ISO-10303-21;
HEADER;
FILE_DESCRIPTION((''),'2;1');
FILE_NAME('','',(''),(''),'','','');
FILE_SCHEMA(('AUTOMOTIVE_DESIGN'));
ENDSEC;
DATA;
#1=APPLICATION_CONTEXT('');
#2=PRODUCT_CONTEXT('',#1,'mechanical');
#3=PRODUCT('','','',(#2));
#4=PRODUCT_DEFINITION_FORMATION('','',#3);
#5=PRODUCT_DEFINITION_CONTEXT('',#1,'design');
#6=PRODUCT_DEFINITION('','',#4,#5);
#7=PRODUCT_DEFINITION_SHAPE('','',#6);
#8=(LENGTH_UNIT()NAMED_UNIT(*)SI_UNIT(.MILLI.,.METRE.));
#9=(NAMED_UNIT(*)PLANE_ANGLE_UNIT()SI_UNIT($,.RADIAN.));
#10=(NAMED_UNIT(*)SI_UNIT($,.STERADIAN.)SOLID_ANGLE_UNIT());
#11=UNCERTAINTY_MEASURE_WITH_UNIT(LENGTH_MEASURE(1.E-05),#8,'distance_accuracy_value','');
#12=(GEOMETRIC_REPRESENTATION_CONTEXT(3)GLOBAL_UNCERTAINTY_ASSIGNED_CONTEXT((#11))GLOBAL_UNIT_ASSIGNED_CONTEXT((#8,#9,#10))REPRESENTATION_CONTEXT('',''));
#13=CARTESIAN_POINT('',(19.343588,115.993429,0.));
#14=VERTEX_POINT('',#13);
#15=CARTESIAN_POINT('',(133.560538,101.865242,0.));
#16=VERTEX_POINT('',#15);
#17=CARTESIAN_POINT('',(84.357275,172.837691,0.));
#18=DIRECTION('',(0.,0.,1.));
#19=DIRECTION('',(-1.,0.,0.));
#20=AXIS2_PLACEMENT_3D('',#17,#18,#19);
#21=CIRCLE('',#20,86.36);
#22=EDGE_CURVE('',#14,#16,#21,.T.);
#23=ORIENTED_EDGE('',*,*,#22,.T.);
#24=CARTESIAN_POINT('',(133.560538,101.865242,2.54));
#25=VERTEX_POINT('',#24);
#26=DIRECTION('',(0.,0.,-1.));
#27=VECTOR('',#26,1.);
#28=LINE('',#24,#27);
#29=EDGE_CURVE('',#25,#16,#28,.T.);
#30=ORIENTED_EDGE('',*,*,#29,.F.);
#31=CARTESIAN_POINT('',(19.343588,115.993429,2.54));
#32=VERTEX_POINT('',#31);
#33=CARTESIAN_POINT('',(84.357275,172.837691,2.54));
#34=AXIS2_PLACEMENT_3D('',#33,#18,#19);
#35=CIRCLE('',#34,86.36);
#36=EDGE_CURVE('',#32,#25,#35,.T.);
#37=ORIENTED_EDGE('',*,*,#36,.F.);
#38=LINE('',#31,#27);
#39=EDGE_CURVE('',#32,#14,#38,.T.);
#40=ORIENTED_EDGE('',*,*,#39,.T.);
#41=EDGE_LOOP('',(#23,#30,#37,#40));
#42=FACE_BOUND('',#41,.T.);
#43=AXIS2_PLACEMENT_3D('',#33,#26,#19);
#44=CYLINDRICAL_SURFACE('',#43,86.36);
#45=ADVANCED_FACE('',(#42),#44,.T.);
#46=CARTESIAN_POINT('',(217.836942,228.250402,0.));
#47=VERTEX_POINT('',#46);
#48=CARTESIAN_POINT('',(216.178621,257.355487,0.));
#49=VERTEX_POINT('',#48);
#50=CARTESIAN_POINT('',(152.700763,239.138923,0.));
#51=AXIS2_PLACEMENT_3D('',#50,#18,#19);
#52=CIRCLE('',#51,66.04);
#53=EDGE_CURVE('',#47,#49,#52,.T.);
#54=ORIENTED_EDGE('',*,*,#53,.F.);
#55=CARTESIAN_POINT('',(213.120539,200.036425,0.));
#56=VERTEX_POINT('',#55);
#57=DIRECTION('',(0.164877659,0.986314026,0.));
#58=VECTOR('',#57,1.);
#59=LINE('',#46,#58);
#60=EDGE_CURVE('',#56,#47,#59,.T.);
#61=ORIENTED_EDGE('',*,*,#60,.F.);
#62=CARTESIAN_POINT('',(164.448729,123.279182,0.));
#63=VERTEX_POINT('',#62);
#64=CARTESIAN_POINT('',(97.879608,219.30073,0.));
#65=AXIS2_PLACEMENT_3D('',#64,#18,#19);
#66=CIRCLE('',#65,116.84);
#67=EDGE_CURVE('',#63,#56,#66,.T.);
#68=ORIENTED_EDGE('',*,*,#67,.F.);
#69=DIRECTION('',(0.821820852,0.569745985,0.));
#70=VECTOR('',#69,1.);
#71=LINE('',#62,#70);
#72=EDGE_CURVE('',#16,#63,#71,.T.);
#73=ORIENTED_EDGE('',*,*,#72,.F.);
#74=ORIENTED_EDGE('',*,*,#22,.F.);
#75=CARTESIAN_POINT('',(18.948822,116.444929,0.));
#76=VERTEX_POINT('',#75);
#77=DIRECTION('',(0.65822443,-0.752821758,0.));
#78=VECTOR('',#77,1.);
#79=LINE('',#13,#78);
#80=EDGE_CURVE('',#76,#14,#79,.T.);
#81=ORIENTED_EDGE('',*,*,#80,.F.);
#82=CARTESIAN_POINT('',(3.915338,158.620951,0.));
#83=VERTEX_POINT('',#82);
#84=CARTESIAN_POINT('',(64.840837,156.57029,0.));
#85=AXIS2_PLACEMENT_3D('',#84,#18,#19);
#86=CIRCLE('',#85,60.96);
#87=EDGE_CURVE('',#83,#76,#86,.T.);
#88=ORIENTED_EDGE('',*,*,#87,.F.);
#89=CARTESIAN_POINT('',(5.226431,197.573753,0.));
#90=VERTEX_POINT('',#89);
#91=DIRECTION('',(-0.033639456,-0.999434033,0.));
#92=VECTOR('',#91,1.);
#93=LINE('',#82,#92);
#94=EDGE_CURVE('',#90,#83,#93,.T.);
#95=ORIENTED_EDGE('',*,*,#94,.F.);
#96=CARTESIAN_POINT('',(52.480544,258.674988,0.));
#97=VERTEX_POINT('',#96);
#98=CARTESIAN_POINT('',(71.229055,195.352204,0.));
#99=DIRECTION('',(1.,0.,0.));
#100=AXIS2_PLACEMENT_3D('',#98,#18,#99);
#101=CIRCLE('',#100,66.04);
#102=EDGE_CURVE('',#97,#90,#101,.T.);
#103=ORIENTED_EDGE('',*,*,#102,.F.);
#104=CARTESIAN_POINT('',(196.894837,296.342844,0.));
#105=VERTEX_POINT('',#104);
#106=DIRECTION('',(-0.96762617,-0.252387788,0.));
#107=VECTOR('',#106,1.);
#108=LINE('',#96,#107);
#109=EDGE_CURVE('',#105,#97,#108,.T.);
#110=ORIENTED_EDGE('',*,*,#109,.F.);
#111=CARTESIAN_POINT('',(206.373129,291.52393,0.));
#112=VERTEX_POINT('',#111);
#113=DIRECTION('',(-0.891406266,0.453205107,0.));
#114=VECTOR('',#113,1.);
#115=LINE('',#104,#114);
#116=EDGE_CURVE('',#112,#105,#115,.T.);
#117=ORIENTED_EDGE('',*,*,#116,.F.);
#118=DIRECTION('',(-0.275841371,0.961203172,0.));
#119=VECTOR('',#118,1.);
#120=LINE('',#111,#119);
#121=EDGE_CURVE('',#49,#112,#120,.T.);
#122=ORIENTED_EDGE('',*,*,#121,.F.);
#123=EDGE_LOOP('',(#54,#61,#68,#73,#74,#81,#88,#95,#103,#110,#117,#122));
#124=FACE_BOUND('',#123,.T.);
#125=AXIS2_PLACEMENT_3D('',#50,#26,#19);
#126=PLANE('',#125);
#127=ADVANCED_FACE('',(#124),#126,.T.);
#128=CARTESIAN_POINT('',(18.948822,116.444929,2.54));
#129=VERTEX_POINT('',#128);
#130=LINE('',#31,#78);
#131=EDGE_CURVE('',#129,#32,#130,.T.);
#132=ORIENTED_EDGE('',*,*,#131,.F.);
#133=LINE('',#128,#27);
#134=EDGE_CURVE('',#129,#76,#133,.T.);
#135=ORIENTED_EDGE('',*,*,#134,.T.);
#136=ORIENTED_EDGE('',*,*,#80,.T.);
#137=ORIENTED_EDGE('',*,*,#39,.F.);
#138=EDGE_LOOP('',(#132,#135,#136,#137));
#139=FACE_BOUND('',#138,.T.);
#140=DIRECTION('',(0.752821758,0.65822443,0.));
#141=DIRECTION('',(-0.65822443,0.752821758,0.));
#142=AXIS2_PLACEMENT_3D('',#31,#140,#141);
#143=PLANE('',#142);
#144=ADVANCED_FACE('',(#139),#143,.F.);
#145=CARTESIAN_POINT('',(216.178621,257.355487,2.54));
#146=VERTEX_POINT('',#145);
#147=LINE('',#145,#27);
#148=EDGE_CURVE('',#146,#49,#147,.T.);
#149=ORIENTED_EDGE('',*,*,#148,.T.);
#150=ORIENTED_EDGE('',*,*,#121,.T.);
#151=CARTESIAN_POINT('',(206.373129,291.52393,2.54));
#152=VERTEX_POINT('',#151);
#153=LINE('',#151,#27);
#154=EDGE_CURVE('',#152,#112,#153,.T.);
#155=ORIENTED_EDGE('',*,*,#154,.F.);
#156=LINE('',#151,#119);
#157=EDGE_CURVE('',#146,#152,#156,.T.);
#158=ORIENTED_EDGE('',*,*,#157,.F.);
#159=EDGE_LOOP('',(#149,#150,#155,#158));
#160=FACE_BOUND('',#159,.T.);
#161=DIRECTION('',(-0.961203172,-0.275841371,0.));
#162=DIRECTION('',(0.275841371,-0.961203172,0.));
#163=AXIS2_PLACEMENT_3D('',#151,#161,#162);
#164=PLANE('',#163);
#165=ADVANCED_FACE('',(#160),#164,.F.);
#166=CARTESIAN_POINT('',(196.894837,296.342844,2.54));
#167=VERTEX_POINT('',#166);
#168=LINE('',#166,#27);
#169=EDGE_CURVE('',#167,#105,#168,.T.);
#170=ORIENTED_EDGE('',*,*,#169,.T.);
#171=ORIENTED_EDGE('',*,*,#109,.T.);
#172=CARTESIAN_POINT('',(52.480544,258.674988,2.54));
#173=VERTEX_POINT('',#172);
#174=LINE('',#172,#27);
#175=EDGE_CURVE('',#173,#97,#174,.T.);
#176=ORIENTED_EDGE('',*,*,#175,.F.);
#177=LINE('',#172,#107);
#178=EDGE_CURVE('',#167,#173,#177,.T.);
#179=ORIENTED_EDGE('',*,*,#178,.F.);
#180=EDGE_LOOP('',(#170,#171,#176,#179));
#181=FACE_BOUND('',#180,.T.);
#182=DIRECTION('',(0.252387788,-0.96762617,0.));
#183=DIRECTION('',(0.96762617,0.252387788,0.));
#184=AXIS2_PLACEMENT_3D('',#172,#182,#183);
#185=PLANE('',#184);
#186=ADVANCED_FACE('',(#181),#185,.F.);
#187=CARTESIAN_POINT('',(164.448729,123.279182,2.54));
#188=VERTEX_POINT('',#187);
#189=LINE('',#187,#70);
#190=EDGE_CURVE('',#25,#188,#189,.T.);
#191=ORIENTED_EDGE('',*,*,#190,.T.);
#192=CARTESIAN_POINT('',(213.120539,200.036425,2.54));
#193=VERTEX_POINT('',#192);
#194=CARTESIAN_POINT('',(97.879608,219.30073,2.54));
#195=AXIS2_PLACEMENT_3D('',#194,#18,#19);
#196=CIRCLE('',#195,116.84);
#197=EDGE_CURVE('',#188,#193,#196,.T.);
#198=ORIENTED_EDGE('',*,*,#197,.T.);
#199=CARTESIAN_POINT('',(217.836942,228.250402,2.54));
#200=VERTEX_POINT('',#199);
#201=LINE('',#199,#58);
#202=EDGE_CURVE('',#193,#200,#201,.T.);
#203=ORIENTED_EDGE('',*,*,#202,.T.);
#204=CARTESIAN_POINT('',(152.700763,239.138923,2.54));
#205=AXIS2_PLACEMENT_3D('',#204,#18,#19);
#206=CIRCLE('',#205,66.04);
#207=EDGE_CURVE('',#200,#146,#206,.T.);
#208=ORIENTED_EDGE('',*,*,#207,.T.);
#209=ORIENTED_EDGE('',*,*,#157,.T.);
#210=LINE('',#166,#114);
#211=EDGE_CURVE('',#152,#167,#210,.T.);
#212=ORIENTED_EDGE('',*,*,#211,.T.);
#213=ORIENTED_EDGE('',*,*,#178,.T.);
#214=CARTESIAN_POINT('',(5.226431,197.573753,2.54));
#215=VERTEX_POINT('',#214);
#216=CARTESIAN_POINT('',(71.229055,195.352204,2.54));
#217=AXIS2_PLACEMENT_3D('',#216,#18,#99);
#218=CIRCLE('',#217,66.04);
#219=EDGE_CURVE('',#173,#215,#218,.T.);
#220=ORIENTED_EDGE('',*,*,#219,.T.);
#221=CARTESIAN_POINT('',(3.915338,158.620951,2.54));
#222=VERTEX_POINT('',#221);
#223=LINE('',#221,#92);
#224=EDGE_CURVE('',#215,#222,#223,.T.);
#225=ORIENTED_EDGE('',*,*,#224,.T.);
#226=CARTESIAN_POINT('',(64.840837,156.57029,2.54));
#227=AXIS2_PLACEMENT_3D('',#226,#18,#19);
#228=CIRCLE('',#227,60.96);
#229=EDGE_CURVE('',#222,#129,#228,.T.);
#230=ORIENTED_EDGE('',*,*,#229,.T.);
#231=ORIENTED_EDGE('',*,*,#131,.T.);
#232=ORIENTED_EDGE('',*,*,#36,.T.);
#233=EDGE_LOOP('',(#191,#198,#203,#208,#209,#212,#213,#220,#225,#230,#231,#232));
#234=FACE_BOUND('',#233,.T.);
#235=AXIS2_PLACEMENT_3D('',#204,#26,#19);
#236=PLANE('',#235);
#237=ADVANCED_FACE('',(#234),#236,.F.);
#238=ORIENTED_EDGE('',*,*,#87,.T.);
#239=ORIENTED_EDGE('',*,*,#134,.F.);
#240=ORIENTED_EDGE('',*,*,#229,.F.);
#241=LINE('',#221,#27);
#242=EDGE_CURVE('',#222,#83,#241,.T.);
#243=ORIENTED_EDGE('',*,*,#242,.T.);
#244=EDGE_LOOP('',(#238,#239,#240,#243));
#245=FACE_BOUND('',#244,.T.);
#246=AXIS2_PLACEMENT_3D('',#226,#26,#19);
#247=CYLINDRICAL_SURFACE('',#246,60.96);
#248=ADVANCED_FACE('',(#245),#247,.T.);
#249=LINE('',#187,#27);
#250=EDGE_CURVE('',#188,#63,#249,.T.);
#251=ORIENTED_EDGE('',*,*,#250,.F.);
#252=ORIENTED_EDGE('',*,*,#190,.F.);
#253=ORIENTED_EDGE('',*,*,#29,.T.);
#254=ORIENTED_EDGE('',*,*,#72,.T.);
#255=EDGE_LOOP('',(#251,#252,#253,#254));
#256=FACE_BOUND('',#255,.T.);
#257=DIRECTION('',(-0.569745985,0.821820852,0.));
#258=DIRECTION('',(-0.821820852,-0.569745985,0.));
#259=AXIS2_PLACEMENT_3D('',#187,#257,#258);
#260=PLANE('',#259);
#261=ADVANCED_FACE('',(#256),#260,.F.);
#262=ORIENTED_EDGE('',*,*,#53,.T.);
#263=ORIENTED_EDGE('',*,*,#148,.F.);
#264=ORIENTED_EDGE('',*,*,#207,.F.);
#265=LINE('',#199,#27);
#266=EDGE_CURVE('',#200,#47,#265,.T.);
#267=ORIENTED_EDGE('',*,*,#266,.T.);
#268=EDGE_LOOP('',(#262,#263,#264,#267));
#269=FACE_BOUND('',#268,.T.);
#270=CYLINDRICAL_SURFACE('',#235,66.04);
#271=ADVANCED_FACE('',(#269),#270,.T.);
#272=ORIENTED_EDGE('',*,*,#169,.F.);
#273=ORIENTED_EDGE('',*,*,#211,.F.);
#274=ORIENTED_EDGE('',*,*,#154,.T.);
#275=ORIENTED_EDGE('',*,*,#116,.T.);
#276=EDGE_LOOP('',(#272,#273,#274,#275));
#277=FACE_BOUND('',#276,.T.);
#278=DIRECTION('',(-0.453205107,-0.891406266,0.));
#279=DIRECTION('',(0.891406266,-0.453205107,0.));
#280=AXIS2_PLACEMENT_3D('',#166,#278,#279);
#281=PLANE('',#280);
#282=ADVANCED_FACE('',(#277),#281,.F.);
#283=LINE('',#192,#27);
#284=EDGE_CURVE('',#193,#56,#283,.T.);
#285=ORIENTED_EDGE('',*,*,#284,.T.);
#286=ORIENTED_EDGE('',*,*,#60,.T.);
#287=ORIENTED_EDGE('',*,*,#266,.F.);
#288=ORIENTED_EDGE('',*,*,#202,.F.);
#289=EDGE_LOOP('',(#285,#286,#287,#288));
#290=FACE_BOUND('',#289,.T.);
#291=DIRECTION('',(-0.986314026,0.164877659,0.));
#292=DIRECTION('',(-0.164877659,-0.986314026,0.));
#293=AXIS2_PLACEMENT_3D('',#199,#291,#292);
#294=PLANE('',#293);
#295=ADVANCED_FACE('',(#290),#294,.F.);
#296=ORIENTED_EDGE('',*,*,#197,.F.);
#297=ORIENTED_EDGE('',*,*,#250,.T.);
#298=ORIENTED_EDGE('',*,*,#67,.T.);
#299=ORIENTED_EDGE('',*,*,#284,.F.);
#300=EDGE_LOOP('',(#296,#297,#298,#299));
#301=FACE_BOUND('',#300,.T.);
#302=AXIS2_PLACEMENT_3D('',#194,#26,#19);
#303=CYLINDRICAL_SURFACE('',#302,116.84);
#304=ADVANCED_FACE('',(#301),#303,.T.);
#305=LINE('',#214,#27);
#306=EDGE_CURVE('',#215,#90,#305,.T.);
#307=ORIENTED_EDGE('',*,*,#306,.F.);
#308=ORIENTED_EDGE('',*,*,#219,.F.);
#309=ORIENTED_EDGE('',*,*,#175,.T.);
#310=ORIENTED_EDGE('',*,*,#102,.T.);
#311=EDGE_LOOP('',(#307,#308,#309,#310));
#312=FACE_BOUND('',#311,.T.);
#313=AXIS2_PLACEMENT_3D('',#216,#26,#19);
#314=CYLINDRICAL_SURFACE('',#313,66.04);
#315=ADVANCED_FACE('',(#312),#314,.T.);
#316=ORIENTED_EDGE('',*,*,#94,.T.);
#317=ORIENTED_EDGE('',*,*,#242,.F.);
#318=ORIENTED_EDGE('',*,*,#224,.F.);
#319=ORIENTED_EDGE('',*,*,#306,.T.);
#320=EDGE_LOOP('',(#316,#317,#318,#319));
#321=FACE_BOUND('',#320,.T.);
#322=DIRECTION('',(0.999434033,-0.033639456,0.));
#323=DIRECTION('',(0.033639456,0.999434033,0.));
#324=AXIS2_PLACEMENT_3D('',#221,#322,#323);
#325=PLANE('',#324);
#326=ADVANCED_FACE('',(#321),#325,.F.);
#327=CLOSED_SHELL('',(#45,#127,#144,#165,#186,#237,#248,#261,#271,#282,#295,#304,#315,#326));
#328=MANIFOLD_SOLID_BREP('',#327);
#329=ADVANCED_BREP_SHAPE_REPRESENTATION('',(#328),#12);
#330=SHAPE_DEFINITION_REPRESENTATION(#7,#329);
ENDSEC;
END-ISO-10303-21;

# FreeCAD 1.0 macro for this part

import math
import FreeCAD as App
import Part
import Sketcher
from FreeCAD import Vector
Q = App.Units.Quantity

doc = App.newDocument("Part")
body = doc.addObject("PartDesign::Body", "Body")

# Sketch on XY plane
sketch1 = body.newObject("Sketcher::SketchObject", "Sketch")
sketch1.AttachmentSupport = (doc.getObject("XY_Plane"), [""])
sketch1.MapMode = "FlatFace"
sketch1.addGeometry([
    Part.LineSegment(Vector(196.9, 296.3, 0), Vector(52.5, 258.7, 0)),  # 0
    Part.ArcOfCircle(Part.Circle(Vector(71.2, 195.4, 0), Vector(0, 0, 1), 66), math.radians(106), math.radians(178)),  # 1
    Part.LineSegment(Vector(5.2, 197.6, 0), Vector(3.9, 158.6, 0)),  # 2
    Part.ArcOfCircle(Part.Circle(Vector(64.8, 156.6, 0), Vector(0, 0, 1), 61), math.radians(178), math.radians(221)),  # 3
    Part.LineSegment(Vector(18.9, 116.4, 0), Vector(19.3, 116, 0)),  # 4
    Part.ArcOfCircle(Part.Circle(Vector(84.4, 172.8, 0), Vector(0, 0, 1), 86.4), math.radians(-139), math.radians(-55)),  # 5
    Part.LineSegment(Vector(133.6, 101.9, 0), Vector(164.4, 123.3, 0)),  # 6
    Part.ArcOfCircle(Part.Circle(Vector(97.9, 219.3, 0), Vector(0, 0, 1), 116.8), math.radians(-55), math.radians(-9)),  # 7
    Part.LineSegment(Vector(213.1, 200, 0), Vector(217.8, 228.3, 0)),  # 8
    Part.ArcOfCircle(Part.Circle(Vector(152.7, 239.1, 0), Vector(0, 0, 1), 66), math.radians(-9), math.radians(16)),  # 9
    Part.LineSegment(Vector(216.2, 257.4, 0), Vector(206.4, 291.5, 0)),  # 10
    Part.LineSegment(Vector(206.4, 291.5, 0), Vector(196.9, 296.3, 0)),  # 11
], False)
sketch1.addConstraint([
    Sketcher.Constraint("Coincident", 0, 2, 1, 1),
    Sketcher.Constraint("Tangent", 1, 2, 2, 1),
    Sketcher.Constraint("Tangent", 2, 2, 3, 1),
    Sketcher.Constraint("Tangent", 3, 2, 4, 1),
    Sketcher.Constraint("Tangent", 4, 2, 5, 1),
    Sketcher.Constraint("Tangent", 5, 2, 6, 1),
    Sketcher.Constraint("Tangent", 6, 2, 7, 1),
    Sketcher.Constraint("Tangent", 7, 2, 8, 1),
    Sketcher.Constraint("Tangent", 8, 2, 9, 1),
    Sketcher.Constraint("Tangent", 9, 2, 10, 1),
    Sketcher.Constraint("Coincident", 10, 2, 11, 1),
    Sketcher.Constraint("Coincident", 11, 2, 0, 1),
    Sketcher.Constraint("Equal", 1, 9),
    Sketcher.Constraint("Radius", 1, Q("2.6 in")),
    Sketcher.Constraint("Radius", 3, Q("2.4 in")),
    Sketcher.Constraint("Radius", 5, Q("3.4 in")),
    Sketcher.Constraint("Radius", 7, Q("4.6 in")),
    Sketcher.Constraint("DistanceX", 3, 3, 5, 2, Q("2.7055001 in")),
    Sketcher.Constraint("DistanceY", 3, 3, 5, 3, 16.267401),
    Sketcher.Constraint("DistanceX", 2, 2, 3, 3, 60.925499),
    Sketcher.Constraint("DistanceY", 4, 2, 3, 2, 0.4515),
    Sketcher.Constraint("DistanceX", 5, 2, 7, 2, 79.56),
    Sketcher.Constraint("DistanceY", 7, 3, 10, 2, 72.2232),
    Sketcher.Constraint("DistanceX", 11, 2, 7, 2, 16.225702),
    Sketcher.Constraint("Distance", 2, 38.974861),
    Sketcher.Constraint("Distance", 8, 28.605471),
    Sketcher.Constraint("DistanceY", -1, 1, 3, 3, 156.57029),
    Sketcher.Constraint("DistanceY", -1, 1, 7, 3, 219.30073),
    Sketcher.Constraint("DistanceX", -1, 1, 1, 2, 5.226431),
    Sketcher.Constraint("DistanceX", -1, 1, 9, 2, 216.178621),
    Sketcher.Constraint("DistanceX", 0, 2, 1, 3, 18.748511),
    Sketcher.Constraint("DistanceY", 9, 3, 11, 2, 57.203922),
])
pad1 = body.newObject("PartDesign::Pad", "Pad")
pad1.Profile = sketch1
pad1.Length = Q("0.1 in")

doc.recompute()
